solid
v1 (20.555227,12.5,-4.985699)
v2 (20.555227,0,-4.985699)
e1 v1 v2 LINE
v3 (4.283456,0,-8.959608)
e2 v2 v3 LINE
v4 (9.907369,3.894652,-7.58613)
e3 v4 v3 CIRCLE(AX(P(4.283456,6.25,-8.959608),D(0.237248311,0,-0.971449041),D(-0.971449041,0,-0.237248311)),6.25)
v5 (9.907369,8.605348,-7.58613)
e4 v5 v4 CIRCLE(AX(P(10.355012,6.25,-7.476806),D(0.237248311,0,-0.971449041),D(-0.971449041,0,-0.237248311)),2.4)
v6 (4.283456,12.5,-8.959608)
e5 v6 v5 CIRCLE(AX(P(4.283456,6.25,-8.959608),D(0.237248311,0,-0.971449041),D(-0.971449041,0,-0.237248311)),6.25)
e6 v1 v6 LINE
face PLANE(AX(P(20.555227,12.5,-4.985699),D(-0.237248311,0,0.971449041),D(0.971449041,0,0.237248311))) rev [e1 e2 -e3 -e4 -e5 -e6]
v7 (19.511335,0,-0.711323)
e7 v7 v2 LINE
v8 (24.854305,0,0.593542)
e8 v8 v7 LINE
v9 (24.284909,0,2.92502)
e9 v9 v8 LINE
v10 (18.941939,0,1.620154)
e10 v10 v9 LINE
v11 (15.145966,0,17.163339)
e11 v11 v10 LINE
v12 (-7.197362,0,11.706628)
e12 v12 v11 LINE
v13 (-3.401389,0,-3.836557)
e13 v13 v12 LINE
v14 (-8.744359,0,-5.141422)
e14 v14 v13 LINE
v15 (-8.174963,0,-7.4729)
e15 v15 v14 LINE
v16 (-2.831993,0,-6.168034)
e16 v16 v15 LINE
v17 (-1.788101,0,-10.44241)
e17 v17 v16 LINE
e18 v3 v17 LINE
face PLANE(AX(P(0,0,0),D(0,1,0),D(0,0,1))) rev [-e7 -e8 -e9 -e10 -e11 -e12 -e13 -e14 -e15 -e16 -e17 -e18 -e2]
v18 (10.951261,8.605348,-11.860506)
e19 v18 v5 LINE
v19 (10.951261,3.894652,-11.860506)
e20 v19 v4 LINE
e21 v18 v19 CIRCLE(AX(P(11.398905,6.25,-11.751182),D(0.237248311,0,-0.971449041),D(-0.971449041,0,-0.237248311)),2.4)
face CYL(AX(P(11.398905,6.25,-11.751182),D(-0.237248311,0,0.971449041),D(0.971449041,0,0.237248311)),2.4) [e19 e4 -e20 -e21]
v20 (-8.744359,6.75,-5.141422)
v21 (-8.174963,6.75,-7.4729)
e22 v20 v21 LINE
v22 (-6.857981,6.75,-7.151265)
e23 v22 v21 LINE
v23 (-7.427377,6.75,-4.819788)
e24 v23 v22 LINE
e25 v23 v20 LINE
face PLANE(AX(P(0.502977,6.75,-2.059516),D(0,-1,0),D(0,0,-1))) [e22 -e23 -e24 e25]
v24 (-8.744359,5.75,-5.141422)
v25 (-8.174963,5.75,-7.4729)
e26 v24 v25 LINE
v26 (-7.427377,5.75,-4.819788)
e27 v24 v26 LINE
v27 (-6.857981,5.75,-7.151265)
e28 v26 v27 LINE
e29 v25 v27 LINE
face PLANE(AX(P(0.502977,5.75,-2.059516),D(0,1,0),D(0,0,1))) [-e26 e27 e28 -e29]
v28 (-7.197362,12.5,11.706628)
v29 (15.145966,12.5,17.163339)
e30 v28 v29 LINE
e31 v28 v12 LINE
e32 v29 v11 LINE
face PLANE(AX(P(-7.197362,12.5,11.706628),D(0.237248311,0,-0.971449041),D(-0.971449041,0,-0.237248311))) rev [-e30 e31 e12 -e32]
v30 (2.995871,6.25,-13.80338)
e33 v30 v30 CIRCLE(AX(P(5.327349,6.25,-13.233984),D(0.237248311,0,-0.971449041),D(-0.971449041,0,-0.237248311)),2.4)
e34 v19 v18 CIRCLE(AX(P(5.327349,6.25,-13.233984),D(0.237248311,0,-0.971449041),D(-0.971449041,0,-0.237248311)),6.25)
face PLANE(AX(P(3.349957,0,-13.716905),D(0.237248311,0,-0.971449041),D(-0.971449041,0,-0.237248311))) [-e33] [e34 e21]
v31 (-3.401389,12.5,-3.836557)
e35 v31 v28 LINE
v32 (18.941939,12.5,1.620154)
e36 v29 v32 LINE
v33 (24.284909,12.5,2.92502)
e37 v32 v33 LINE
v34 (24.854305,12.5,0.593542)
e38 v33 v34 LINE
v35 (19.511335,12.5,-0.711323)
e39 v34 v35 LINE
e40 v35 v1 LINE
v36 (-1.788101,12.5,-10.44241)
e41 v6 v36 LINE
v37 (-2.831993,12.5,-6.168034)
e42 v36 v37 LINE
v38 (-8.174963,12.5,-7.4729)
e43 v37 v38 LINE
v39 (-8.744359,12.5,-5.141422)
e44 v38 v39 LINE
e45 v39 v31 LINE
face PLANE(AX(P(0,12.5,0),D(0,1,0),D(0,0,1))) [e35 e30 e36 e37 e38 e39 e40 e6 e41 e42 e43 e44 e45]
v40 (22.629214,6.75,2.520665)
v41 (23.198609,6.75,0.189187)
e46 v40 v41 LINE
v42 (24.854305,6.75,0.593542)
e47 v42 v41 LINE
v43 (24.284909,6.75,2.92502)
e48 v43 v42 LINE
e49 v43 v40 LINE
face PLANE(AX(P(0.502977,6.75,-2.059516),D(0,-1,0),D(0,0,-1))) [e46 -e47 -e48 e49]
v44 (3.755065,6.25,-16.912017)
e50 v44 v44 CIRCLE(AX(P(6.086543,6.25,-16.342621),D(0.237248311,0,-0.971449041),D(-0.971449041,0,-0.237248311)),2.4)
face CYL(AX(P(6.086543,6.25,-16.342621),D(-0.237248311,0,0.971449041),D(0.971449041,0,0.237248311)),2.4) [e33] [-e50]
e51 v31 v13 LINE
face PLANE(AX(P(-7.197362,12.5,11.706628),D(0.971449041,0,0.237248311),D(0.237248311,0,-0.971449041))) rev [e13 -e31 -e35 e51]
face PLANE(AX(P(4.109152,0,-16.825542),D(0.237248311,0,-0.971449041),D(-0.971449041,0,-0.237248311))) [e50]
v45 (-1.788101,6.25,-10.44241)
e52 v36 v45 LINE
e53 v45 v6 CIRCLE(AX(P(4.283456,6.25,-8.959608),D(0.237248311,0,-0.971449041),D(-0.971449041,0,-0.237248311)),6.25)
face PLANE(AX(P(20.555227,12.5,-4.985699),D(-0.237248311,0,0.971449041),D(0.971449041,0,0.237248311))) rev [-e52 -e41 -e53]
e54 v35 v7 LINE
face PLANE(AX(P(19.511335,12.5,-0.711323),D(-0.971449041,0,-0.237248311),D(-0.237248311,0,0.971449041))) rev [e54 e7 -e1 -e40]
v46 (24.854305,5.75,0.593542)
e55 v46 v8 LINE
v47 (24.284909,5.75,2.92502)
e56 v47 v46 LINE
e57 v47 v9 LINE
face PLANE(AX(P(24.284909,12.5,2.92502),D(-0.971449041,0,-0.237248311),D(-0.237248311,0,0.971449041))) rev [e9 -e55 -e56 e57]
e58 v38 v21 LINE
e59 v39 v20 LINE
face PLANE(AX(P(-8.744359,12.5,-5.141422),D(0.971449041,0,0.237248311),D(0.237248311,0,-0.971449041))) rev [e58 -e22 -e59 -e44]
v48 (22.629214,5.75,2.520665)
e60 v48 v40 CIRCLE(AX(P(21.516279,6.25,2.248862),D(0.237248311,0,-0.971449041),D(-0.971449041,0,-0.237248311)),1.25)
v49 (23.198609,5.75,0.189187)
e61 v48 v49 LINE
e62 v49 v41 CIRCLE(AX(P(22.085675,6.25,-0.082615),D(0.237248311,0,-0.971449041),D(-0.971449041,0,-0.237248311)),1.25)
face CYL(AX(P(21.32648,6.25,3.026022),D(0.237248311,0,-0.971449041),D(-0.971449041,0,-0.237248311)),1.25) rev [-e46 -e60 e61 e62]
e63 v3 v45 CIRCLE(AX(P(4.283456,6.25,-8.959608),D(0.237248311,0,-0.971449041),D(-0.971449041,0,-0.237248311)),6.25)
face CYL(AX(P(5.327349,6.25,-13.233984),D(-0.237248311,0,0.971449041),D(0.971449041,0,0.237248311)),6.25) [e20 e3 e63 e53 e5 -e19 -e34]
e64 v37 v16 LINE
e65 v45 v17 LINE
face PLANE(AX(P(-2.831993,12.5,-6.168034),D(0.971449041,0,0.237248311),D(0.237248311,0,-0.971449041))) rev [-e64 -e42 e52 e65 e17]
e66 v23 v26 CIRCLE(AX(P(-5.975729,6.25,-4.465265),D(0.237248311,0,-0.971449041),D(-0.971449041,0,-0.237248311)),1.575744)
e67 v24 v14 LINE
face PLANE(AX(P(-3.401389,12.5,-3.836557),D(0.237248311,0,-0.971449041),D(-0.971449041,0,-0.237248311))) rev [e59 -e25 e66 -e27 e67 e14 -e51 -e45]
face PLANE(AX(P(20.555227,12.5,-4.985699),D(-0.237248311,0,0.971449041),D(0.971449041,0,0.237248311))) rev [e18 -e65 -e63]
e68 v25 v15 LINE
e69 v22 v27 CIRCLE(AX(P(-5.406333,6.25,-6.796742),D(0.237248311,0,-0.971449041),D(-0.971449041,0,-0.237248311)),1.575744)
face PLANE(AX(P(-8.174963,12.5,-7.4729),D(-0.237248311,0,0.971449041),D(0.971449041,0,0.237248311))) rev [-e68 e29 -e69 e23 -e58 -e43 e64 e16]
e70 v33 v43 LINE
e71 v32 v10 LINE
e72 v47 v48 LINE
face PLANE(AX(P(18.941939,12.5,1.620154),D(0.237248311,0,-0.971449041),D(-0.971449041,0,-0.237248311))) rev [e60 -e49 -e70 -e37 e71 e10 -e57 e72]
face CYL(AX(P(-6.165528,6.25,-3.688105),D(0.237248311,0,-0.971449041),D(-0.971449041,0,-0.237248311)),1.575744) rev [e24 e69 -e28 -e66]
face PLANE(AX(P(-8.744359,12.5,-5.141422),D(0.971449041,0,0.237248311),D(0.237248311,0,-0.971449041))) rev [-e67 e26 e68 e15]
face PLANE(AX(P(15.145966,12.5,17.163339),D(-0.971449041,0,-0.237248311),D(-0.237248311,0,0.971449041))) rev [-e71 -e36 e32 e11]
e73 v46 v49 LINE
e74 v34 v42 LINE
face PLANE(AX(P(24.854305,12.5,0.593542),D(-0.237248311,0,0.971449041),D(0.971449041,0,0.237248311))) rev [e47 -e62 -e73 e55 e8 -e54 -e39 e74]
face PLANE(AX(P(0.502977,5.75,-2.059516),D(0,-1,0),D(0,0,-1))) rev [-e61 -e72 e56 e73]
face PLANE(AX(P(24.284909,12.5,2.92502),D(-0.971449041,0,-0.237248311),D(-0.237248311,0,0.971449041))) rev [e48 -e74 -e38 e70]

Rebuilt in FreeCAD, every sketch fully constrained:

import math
import FreeCAD as App
import Part
import Sketcher

doc = App.newDocument("Part")
body = doc.addObject("PartDesign::Body", "Body")

sketch1 = body.newObject("Sketcher::SketchObject", "Sketch")
sketch1.AttachmentSupport = (doc.getObject("XZ_Plane"), [""])
sketch1.MapMode = "FlatFace"
sketch1.addGeometry([
    Part.LineSegment(App.Vector(-7.2, 11.7, 0), App.Vector(15.1, 17.2, 0)),
    Part.LineSegment(App.Vector(15.1, 17.2, 0), App.Vector(18.9, 1.6, 0)),
    Part.LineSegment(App.Vector(18.9, 1.6, 0), App.Vector(24.3, 2.9, 0)),
    Part.LineSegment(App.Vector(24.3, 2.9, 0), App.Vector(24.9, 0.6, 0)),
    Part.LineSegment(App.Vector(24.9, 0.6, 0), App.Vector(19.5, -0.7, 0)),
    Part.LineSegment(App.Vector(19.5, -0.7, 0), App.Vector(20.6, -5, 0)),
    Part.LineSegment(App.Vector(20.6, -5, 0), App.Vector(-1.8, -10.4, 0)),
    Part.LineSegment(App.Vector(-1.8, -10.4, 0), App.Vector(-2.8, -6.2, 0)),
    Part.LineSegment(App.Vector(-2.8, -6.2, 0), App.Vector(-8.2, -7.5, 0)),
    Part.LineSegment(App.Vector(-8.2, -7.5, 0), App.Vector(-8.7, -5.1, 0)),
    Part.LineSegment(App.Vector(-8.7, -5.1, 0), App.Vector(-3.4, -3.8, 0)),
    Part.LineSegment(App.Vector(-3.4, -3.8, 0), App.Vector(-7.2, 11.7, 0)),
], False)
sketch1.addConstraint([
    Sketcher.Constraint("Coincident", 0, 2, 1, 1),
    Sketcher.Constraint("Coincident", 1, 2, 2, 1),
    Sketcher.Constraint("Coincident", 2, 2, 3, 1),
    Sketcher.Constraint("Coincident", 3, 2, 4, 1),
    Sketcher.Constraint("Coincident", 4, 2, 5, 1),
    Sketcher.Constraint("Coincident", 5, 2, 6, 1),
    Sketcher.Constraint("Coincident", 6, 2, 7, 1),
    Sketcher.Constraint("Coincident", 7, 2, 8, 1),
    Sketcher.Constraint("Coincident", 8, 2, 9, 1),
    Sketcher.Constraint("Coincident", 9, 2, 10, 1),
    Sketcher.Constraint("Coincident", 10, 2, 11, 1),
    Sketcher.Constraint("Coincident", 11, 2, 0, 1),
    Sketcher.Constraint("Perpendicular", 0, 1),
    Sketcher.Constraint("Perpendicular", 1, 2),
    Sketcher.Constraint("Perpendicular", 2, 3),
    Sketcher.Constraint("Perpendicular", 3, 4),
    Sketcher.Constraint("Perpendicular", 4, 5),
    Sketcher.Constraint("Perpendicular", 5, 6),
    Sketcher.Constraint("Perpendicular", 6, 7),
    Sketcher.Constraint("Perpendicular", 7, 8),
    Sketcher.Constraint("Perpendicular", 8, 9),
    Sketcher.Constraint("Perpendicular", 9, 10),
    Sketcher.Constraint("Perpendicular", 10, 11),
    Sketcher.Constraint("Equal", 2, 4),
    Sketcher.Constraint("Equal", 0, 6),
    Sketcher.Constraint("Equal", 5, 7),
    Sketcher.Constraint("Equal", 4, 8),
    Sketcher.Constraint("Equal", 3, 9),
    Sketcher.Constraint("Distance", 0, 23.0),
    Sketcher.Constraint("Distance", 1, 16.0),
    Sketcher.Constraint("Distance", 2, 5.5),
    Sketcher.Constraint("Distance", 3, 2.4),
    Sketcher.Constraint("Distance", 5, 4.4),
    Sketcher.Constraint("DistanceY", 5, 2, -1, 1, 4.985699),
    Sketcher.Constraint("DistanceX", 6, 2, -1, 1, 1.788101),
    Sketcher.Constraint("DistanceY", 8, 2, -1, 1, 7.4729),
])
pad1 = body.newObject("PartDesign::Pad", "Pad")
pad1.Profile = sketch1
pad1.Length = 12.5
pad1.Reversed = True

sketch2 = body.newObject("Sketcher::SketchObject", "Sketch001")
sketch2.Placement = App.Placement(App.Vector(2.306064, 0, -9.442529), App.Rotation(App.Vector(-0.971449041, 0, -0.237248311), App.Vector(0, 1, 0), App.Vector(0.237248311, 0, -0.971449041), "ZXY"))
sketch2.addGeometry([
    Part.ArcOfCircle(Part.Circle(App.Vector(-2, 6.3, 0), App.Vector(0, 0, 1), 6.2), math.radians(-158), math.radians(158)),
    Part.ArcOfCircle(Part.Circle(App.Vector(-8.3, 6.3, 0), App.Vector(0, 0, 1), 2.4), math.radians(79), math.radians(281)),
], False)
sketch2.addConstraint([
    Sketcher.Constraint("Coincident", 0, 1, 1, 2),
    Sketcher.Constraint("Coincident", 1, 1, 0, 2),
    Sketcher.Constraint("Horizontal", 0, 3, 1, 3),
    Sketcher.Constraint("Radius", 1, 2.4),
    Sketcher.Constraint("Radius", 0, 6.25),
    Sketcher.Constraint("DistanceY", -1, 1, 0, 3, 6.25),
    Sketcher.Constraint("DistanceX", 1, 3, 0, 3, 6.25),
    Sketcher.Constraint("DistanceX", 0, 3, -1, 1, 2.035507),
])
pad2 = body.newObject("PartDesign::Pad", "Pad001")
pad2.Profile = sketch2
pad2.Length = 4.4

sketch3 = body.newObject("Sketcher::SketchObject", "Sketch002")
sketch3.Placement = App.Placement(App.Vector(3.349957, 0, -13.716905), App.Rotation(App.Vector(-0.971449041, 0, -0.237248311), App.Vector(0, 1, 0), App.Vector(0.237248311, 0, -0.971449041), "ZXY"))
sketch3.addGeometry(Part.Circle(App.Vector(-2, 6.3, 0), App.Vector(0, 0, 1), 2.4), False)
sketch3.addConstraint([
    Sketcher.Constraint("Diameter", 0, 4.8),
    Sketcher.Constraint("DistanceY", -1, 1, 0, 3, 6.25),
    Sketcher.Constraint("DistanceX", 0, 3, -1, 1, 2.035507),
])
pad3 = body.newObject("PartDesign::Pad", "Pad002")
pad3.Profile = sketch3
pad3.Length = 3.2

sketch4 = body.newObject("Sketcher::SketchObject", "Sketch003")
sketch4.Placement = App.Placement(App.Vector(1.262172, 0, -5.168153), App.Rotation(App.Vector(-0.971449041, 0, -0.237248311), App.Vector(0, 1, 0), App.Vector(0.237248311, 0, -0.971449041), "ZXY"))
sketch4.addGeometry([
    Part.ArcOfCircle(Part.Circle(App.Vector(-21.4, 6.3, 0), App.Vector(0, 0, 1), 1.2), math.radians(-156), math.radians(156)),
    Part.LineSegment(App.Vector(-22.6, 6.8, 0), App.Vector(-24.3, 6.8, 0)),
    Part.LineSegment(App.Vector(-24.3, 6.8, 0), App.Vector(-24.3, 5.8, 0)),
    Part.LineSegment(App.Vector(-24.3, 5.8, 0), App.Vector(-22.6, 5.8, 0)),
], False)
sketch4.addConstraint([
    Sketcher.Constraint("Coincident", 0, 2, 1, 1),
    Sketcher.Constraint("Coincident", 1, 2, 2, 1),
    Sketcher.Constraint("Coincident", 2, 2, 3, 1),
    Sketcher.Constraint("Coincident", 3, 2, 0, 1),
    Sketcher.Constraint("Horizontal", 1),
    Sketcher.Constraint("Vertical", 2),
    Sketcher.Constraint("Horizontal", 3),
    Sketcher.Constraint("Vertical", 0, 2, 3, 2),
    Sketcher.Constraint("DistanceY", 2, 2, 2, 1, 1.0),
    Sketcher.Constraint("Radius", 0, 1.25),
    Sketcher.Constraint("DistanceY", -1, 1, 0, 3, 6.25),
    Sketcher.Constraint("DistanceX", 1, 2, 0, 3, 2.85),
    Sketcher.Constraint("DistanceX", 0, 2, -1, 1, 22.581151),
])
pocket1 = body.newObject("PartDesign::Pocket", "Pocket")
pocket1.Profile = sketch4
pocket1.Length = 3.2

sketch5 = body.newObject("Sketcher::SketchObject", "Sketch004")
sketch5.Placement = App.Placement(App.Vector(1.262172, 0, -5.168153), App.Rotation(App.Vector(-0.971449041, 0, -0.237248311), App.Vector(0, 1, 0), App.Vector(0.237248311, 0, -0.971449041), "ZXY"))
sketch5.addGeometry([
    Part.ArcOfCircle(Part.Circle(App.Vector(6.9, 6.3, 0), App.Vector(0, 0, 1), 1.6), math.radians(180), math.radians(341)),
    Part.LineSegment(App.Vector(8.4, 5.8, 0), App.Vector(9.7, 5.8, 0)),
    Part.LineSegment(App.Vector(9.7, 5.8, 0), App.Vector(9.7, 6.8, 0)),
    Part.LineSegment(App.Vector(9.7, 6.8, 0), App.Vector(8.4, 6.8, 0)),
    Part.ArcOfCircle(Part.Circle(App.Vector(6.9, 6.3, 0), App.Vector(0, 0, 1), 1.6), math.radians(19), math.radians(180)),
], False)
sketch5.addConstraint([
    Sketcher.Constraint("Coincident", 0, 2, 1, 1),
    Sketcher.Constraint("Coincident", 1, 2, 2, 1),
    Sketcher.Constraint("Coincident", 2, 2, 3, 1),
    Sketcher.Constraint("Coincident", 3, 2, 4, 1),
    Sketcher.Constraint("Tangent", 4, 2, 0, 1),
    Sketcher.Constraint("Horizontal", 1),
    Sketcher.Constraint("Vertical", 2),
    Sketcher.Constraint("Horizontal", 3),
    Sketcher.Constraint("Equal", 0, 4),
    Sketcher.Constraint("Horizontal", 0, 3, 4, 2),
    Sketcher.Constraint("Vertical", 0, 2, 3, 2),
    Sketcher.Constraint("DistanceY", 2, 1, 2, 2, 1.0),
    Sketcher.Constraint("DistanceY", -1, 1, 0, 3, 6.25),
    Sketcher.Constraint("DistanceX", 0, 3, 1, 2, 2.85),
    Sketcher.Constraint("Radius", 0, 1.575744),
    Sketcher.Constraint("DistanceX", -1, 1, 4, 2, 5.288749),
])
pocket2 = body.newObject("PartDesign::Pocket", "Pocket001")
pocket2.Profile = sketch5
pocket2.Length = 3.2

doc.recompute()
